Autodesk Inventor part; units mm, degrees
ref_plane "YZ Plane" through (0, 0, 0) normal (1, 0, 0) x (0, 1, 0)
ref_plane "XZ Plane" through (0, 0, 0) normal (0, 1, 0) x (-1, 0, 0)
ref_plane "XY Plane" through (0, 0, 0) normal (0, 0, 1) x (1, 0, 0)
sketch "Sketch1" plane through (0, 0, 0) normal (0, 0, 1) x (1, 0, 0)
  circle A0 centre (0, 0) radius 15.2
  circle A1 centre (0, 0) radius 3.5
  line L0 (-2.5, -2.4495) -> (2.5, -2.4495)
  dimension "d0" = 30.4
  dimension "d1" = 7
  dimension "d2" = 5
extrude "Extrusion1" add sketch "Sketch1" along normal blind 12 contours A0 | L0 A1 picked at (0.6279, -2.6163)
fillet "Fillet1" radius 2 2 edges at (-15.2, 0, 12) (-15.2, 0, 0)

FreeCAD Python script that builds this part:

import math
import FreeCAD as App
import Part
import Sketcher
Q = App.Units.Quantity


def edges_at(feature, points):
    """Names of the edges that pass closest to the given points."""
    edges = feature.Shape.Edges
    near = lambda p: min(range(len(edges)), key=lambda i: edges[i].distToShape(Part.Vertex(*p))[0])
    return sorted({f"Edge{near(p) + 1}" for p in points})

doc = App.newDocument("Part")
params = doc.addObject("Spreadsheet::Sheet", "Params")
for row, (alias, value) in enumerate([
    ("sketch1_diameter", "30.4 mm"),
    ("sketch1_radius", "3.5 mm"),
    ("sketch1_width", "5 mm"),
    ("pad1_length", "12 mm"),
    ("fillet_radius", "2 mm"),
], start=1):
    params.set(f"A{row}", alias)
    params.set(f"B{row}", "=" + value)
    params.setAlias(f"B{row}", alias)

body = doc.addObject("PartDesign::Body", "Body")

sketch1 = body.newObject("Sketcher::SketchObject", "Sketch")
sketch1.AttachmentSupport = (doc.getObject("XY_Plane"), [""])
sketch1.MapMode = "FlatFace"
sketch1.addGeometry([
    Part.Circle(App.Vector(0, 0, 0), App.Vector(0, 0, 1), 15.2),
    Part.ArcOfCircle(Part.Circle(App.Vector(0, 0, 0), App.Vector(0, 0, 1), 3.5), math.radians(-44.415429), math.radians(224.415429)),
    Part.LineSegment(App.Vector(-2.5, -2.4495, 0), App.Vector(2.5, -2.4495, 0)),
], False)
sketch1.addConstraint([
    Sketcher.Constraint("Coincident", 1, 1, 2, 2),
    Sketcher.Constraint("Coincident", 2, 1, 1, 2),
    Sketcher.Constraint("Horizontal", 2),
    Sketcher.Constraint("Coincident", 0, 3, -1, 1),
    Sketcher.Constraint("Coincident", 1, 3, -1, 1),
    Sketcher.Constraint("Diameter", 0, Q("30.4 mm")),
    Sketcher.Constraint("Radius", 1, Q("3.5 mm")),
    Sketcher.Constraint("DistanceX", 2, 1, 2, 2, Q("5 mm")),
])
sketch1.setExpression("Constraints[5]", "Params.sketch1_diameter")
sketch1.setExpression("Constraints[6]", "Params.sketch1_radius")
sketch1.setExpression("Constraints[7]", "Params.sketch1_width")
pad1 = body.newObject("PartDesign::Pad", "Pad")
pad1.Profile = sketch1
pad1.setExpression("Length", "Params.pad1_length")
doc.recompute()

fillet = body.newObject("PartDesign::Fillet", "Fillet")
fillet.Base = (pad1, edges_at(pad1, [(-15.2, 0, 12), (-15.2, 0, 0)]))
fillet.setExpression("Radius", "Params.fillet_radius")

doc.recompute()
